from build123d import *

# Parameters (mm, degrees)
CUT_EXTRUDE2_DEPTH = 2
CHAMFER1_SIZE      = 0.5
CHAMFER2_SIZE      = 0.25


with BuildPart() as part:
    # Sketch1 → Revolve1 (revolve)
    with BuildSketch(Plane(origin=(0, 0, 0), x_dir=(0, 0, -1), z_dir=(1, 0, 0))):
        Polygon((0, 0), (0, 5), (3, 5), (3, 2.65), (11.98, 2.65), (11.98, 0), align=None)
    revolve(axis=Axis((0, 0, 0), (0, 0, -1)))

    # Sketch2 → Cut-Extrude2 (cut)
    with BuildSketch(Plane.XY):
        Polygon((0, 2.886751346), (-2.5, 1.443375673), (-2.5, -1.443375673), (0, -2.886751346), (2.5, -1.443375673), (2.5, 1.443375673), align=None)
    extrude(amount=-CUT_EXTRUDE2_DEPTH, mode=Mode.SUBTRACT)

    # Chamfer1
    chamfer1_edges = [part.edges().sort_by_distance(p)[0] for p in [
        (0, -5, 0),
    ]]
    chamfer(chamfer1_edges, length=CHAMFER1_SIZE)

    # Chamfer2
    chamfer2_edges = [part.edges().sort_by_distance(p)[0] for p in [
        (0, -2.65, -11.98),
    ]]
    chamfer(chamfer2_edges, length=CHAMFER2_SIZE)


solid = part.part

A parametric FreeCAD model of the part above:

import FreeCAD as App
import Part
import Sketcher

V = App.Vector
Q = App.Units.Quantity


def edges_at(feature, points):
    """Names of the edges that pass closest to the given points."""
    edges = feature.Shape.Edges
    near = lambda p: min(range(len(edges)), key=lambda i: edges[i].distToShape(Part.Vertex(*p))[0])
    return sorted({f"Edge{near(p) + 1}" for p in points})

doc = App.newDocument("Part")
params = doc.addObject("Spreadsheet::Sheet", "Params")
for row, (alias, value) in enumerate([
    ("sketch1_width", "5 mm"),
    ("sketch1_height", "3 mm"),
    ("sketch1_width2", "2.65 mm"),
    ("sketch1_height2", "11.98 mm"),
    ("revolution_angle", "360 deg"),
    ("pocket1_length", "2 mm"),
    ("chamfer_size", "0.5 mm"),
    ("chamfer2_size", "0.25 mm"),
], start=1):
    params.set(f"A{row}", alias)
    params.set(f"B{row}", "=" + value)
    params.setAlias(f"B{row}", alias)

body = doc.addObject("PartDesign::Body", "Body")

# Sketch on YZ plane
sketch1 = body.newObject("Sketcher::SketchObject", "Sketch")
sketch1.AttachmentSupport = (doc.getObject("YZ_Plane"), [""])
sketch1.MapMode = "FlatFace"
sketch1.addGeometry(Part.LineSegment(V(5, 0, 0), V(0, 0, 0)), False)
sketch1.addGeometry(Part.LineSegment(V(0, 0, 0), V(0, -11.98, 0)), False)
sketch1.addGeometry(Part.LineSegment(V(0, -11.98, 0), V(2.65, -11.98, 0)), False)
sketch1.addGeometry(Part.LineSegment(V(2.65, -11.98, 0), V(2.65, -3, 0)), False)
sketch1.addGeometry(Part.LineSegment(V(2.65, -3, 0), V(5, -3, 0)), False)
sketch1.addGeometry(Part.LineSegment(V(5, -3, 0), V(5, 0, 0)), False)
sketch1.addConstraint(Sketcher.Constraint("Coincident", 0, 2, 1, 1))
sketch1.addConstraint(Sketcher.Constraint("Coincident", 1, 2, 2, 1))
sketch1.addConstraint(Sketcher.Constraint("Coincident", 2, 2, 3, 1))
sketch1.addConstraint(Sketcher.Constraint("Coincident", 3, 2, 4, 1))
sketch1.addConstraint(Sketcher.Constraint("Coincident", 4, 2, 5, 1))
sketch1.addConstraint(Sketcher.Constraint("Coincident", 5, 2, 0, 1))
sketch1.addConstraint(Sketcher.Constraint("Horizontal", 0))
sketch1.addConstraint(Sketcher.Constraint("Vertical", 1))
sketch1.addConstraint(Sketcher.Constraint("Horizontal", 2))
sketch1.addConstraint(Sketcher.Constraint("Vertical", 3))
sketch1.addConstraint(Sketcher.Constraint("Horizontal", 4))
sketch1.addConstraint(Sketcher.Constraint("Vertical", 5))
sketch1.addConstraint(Sketcher.Constraint("Coincident", 0, 2, -1, 1))
sketch1.addConstraint(Sketcher.Constraint("DistanceX", 0, 2, 0, 1, Q("5 mm")))
sketch1.addConstraint(Sketcher.Constraint("DistanceY", 5, 1, 5, 2, Q("3 mm")))
sketch1.addConstraint(Sketcher.Constraint("DistanceX", 2, 1, 2, 2, Q("2.65 mm")))
sketch1.addConstraint(Sketcher.Constraint("DistanceY", 1, 2, 1, 1, Q("11.98 mm")))
sketch1.setExpression("Constraints[13]", "Params.sketch1_width")
sketch1.setExpression("Constraints[14]", "Params.sketch1_height")
sketch1.setExpression("Constraints[15]", "Params.sketch1_width2")
sketch1.setExpression("Constraints[16]", "Params.sketch1_height2")
revolution = body.newObject("PartDesign::Revolution", "Revolution")
revolution.Profile = sketch1
revolution.ReferenceAxis = (sketch1, ["V_Axis"])
revolution.setExpression("Angle", "Params.revolution_angle")

# Sketch on XY plane
sketch2 = body.newObject("Sketcher::SketchObject", "Sketch001")
sketch2.AttachmentSupport = (doc.getObject("XY_Plane"), [""])
sketch2.MapMode = "FlatFace"
sketch2.addGeometry(Part.LineSegment(V(0, 2.886751, 0), V(-2.5, 1.443376, 0)), False)
sketch2.addGeometry(Part.LineSegment(V(-2.5, 1.443376, 0), V(-2.5, -1.443376, 0)), False)
sketch2.addGeometry(Part.LineSegment(V(-2.5, -1.443376, 0), V(0, -2.886751, 0)), False)
sketch2.addGeometry(Part.LineSegment(V(0, -2.886751, 0), V(2.5, -1.443376, 0)), False)
sketch2.addGeometry(Part.LineSegment(V(2.5, -1.443376, 0), V(2.5, 1.443376, 0)), False)
sketch2.addGeometry(Part.LineSegment(V(2.5, 1.443376, 0), V(0, 2.886751, 0)), False)
sketch2.addConstraint(Sketcher.Constraint("Coincident", 0, 2, 1, 1))
sketch2.addConstraint(Sketcher.Constraint("Coincident", 1, 2, 2, 1))
sketch2.addConstraint(Sketcher.Constraint("Coincident", 2, 2, 3, 1))
sketch2.addConstraint(Sketcher.Constraint("Coincident", 3, 2, 4, 1))
sketch2.addConstraint(Sketcher.Constraint("Coincident", 4, 2, 5, 1))
sketch2.addConstraint(Sketcher.Constraint("Coincident", 5, 2, 0, 1))
sketch2.addConstraint(Sketcher.Constraint("Vertical", 1))
sketch2.addConstraint(Sketcher.Constraint("Vertical", 4))
sketch2.addConstraint(Sketcher.Constraint("Symmetric", 0, 2, 3, 2, -1, 1))
sketch2.addConstraint(Sketcher.Constraint("Symmetric", 2, 2, 5, 2, -1, 1))
sketch2.addConstraint(Sketcher.Constraint("PointOnObject", 2, 2, -2))
sketch2.addConstraint(Sketcher.Constraint("Parallel", 2, 5))
sketch2.addConstraint(Sketcher.Constraint("Horizontal", 1, 2, 3, 2))
sketch2.addConstraint(Sketcher.Constraint("Angle", 0, Q("-150 deg")))
sketch2.addConstraint(Sketcher.Constraint("DistanceX", 1, 2, 3, 2, Q("5 mm")))
sketch2.addConstraint(Sketcher.Constraint("DistanceY", 1, 2, 1, 1, Q("2.886751 mm")))
pocket1 = body.newObject("PartDesign::Pocket", "Pocket")
pocket1.Profile = sketch2
pocket1.setExpression("Length", "Params.pocket1_length")
doc.recompute()

chamfer = body.newObject("PartDesign::Chamfer", "Chamfer")
chamfer.Base = (pocket1, edges_at(pocket1, [(0, -5, 0)]))
chamfer.setExpression("Size", "Params.chamfer_size")
doc.recompute()

chamfer2 = body.newObject("PartDesign::Chamfer", "Chamfer001")
chamfer2.Base = (chamfer, edges_at(chamfer, [(0, -2.65, -11.98)]))
chamfer2.setExpression("Size", "Params.chamfer2_size")

doc.recompute()
